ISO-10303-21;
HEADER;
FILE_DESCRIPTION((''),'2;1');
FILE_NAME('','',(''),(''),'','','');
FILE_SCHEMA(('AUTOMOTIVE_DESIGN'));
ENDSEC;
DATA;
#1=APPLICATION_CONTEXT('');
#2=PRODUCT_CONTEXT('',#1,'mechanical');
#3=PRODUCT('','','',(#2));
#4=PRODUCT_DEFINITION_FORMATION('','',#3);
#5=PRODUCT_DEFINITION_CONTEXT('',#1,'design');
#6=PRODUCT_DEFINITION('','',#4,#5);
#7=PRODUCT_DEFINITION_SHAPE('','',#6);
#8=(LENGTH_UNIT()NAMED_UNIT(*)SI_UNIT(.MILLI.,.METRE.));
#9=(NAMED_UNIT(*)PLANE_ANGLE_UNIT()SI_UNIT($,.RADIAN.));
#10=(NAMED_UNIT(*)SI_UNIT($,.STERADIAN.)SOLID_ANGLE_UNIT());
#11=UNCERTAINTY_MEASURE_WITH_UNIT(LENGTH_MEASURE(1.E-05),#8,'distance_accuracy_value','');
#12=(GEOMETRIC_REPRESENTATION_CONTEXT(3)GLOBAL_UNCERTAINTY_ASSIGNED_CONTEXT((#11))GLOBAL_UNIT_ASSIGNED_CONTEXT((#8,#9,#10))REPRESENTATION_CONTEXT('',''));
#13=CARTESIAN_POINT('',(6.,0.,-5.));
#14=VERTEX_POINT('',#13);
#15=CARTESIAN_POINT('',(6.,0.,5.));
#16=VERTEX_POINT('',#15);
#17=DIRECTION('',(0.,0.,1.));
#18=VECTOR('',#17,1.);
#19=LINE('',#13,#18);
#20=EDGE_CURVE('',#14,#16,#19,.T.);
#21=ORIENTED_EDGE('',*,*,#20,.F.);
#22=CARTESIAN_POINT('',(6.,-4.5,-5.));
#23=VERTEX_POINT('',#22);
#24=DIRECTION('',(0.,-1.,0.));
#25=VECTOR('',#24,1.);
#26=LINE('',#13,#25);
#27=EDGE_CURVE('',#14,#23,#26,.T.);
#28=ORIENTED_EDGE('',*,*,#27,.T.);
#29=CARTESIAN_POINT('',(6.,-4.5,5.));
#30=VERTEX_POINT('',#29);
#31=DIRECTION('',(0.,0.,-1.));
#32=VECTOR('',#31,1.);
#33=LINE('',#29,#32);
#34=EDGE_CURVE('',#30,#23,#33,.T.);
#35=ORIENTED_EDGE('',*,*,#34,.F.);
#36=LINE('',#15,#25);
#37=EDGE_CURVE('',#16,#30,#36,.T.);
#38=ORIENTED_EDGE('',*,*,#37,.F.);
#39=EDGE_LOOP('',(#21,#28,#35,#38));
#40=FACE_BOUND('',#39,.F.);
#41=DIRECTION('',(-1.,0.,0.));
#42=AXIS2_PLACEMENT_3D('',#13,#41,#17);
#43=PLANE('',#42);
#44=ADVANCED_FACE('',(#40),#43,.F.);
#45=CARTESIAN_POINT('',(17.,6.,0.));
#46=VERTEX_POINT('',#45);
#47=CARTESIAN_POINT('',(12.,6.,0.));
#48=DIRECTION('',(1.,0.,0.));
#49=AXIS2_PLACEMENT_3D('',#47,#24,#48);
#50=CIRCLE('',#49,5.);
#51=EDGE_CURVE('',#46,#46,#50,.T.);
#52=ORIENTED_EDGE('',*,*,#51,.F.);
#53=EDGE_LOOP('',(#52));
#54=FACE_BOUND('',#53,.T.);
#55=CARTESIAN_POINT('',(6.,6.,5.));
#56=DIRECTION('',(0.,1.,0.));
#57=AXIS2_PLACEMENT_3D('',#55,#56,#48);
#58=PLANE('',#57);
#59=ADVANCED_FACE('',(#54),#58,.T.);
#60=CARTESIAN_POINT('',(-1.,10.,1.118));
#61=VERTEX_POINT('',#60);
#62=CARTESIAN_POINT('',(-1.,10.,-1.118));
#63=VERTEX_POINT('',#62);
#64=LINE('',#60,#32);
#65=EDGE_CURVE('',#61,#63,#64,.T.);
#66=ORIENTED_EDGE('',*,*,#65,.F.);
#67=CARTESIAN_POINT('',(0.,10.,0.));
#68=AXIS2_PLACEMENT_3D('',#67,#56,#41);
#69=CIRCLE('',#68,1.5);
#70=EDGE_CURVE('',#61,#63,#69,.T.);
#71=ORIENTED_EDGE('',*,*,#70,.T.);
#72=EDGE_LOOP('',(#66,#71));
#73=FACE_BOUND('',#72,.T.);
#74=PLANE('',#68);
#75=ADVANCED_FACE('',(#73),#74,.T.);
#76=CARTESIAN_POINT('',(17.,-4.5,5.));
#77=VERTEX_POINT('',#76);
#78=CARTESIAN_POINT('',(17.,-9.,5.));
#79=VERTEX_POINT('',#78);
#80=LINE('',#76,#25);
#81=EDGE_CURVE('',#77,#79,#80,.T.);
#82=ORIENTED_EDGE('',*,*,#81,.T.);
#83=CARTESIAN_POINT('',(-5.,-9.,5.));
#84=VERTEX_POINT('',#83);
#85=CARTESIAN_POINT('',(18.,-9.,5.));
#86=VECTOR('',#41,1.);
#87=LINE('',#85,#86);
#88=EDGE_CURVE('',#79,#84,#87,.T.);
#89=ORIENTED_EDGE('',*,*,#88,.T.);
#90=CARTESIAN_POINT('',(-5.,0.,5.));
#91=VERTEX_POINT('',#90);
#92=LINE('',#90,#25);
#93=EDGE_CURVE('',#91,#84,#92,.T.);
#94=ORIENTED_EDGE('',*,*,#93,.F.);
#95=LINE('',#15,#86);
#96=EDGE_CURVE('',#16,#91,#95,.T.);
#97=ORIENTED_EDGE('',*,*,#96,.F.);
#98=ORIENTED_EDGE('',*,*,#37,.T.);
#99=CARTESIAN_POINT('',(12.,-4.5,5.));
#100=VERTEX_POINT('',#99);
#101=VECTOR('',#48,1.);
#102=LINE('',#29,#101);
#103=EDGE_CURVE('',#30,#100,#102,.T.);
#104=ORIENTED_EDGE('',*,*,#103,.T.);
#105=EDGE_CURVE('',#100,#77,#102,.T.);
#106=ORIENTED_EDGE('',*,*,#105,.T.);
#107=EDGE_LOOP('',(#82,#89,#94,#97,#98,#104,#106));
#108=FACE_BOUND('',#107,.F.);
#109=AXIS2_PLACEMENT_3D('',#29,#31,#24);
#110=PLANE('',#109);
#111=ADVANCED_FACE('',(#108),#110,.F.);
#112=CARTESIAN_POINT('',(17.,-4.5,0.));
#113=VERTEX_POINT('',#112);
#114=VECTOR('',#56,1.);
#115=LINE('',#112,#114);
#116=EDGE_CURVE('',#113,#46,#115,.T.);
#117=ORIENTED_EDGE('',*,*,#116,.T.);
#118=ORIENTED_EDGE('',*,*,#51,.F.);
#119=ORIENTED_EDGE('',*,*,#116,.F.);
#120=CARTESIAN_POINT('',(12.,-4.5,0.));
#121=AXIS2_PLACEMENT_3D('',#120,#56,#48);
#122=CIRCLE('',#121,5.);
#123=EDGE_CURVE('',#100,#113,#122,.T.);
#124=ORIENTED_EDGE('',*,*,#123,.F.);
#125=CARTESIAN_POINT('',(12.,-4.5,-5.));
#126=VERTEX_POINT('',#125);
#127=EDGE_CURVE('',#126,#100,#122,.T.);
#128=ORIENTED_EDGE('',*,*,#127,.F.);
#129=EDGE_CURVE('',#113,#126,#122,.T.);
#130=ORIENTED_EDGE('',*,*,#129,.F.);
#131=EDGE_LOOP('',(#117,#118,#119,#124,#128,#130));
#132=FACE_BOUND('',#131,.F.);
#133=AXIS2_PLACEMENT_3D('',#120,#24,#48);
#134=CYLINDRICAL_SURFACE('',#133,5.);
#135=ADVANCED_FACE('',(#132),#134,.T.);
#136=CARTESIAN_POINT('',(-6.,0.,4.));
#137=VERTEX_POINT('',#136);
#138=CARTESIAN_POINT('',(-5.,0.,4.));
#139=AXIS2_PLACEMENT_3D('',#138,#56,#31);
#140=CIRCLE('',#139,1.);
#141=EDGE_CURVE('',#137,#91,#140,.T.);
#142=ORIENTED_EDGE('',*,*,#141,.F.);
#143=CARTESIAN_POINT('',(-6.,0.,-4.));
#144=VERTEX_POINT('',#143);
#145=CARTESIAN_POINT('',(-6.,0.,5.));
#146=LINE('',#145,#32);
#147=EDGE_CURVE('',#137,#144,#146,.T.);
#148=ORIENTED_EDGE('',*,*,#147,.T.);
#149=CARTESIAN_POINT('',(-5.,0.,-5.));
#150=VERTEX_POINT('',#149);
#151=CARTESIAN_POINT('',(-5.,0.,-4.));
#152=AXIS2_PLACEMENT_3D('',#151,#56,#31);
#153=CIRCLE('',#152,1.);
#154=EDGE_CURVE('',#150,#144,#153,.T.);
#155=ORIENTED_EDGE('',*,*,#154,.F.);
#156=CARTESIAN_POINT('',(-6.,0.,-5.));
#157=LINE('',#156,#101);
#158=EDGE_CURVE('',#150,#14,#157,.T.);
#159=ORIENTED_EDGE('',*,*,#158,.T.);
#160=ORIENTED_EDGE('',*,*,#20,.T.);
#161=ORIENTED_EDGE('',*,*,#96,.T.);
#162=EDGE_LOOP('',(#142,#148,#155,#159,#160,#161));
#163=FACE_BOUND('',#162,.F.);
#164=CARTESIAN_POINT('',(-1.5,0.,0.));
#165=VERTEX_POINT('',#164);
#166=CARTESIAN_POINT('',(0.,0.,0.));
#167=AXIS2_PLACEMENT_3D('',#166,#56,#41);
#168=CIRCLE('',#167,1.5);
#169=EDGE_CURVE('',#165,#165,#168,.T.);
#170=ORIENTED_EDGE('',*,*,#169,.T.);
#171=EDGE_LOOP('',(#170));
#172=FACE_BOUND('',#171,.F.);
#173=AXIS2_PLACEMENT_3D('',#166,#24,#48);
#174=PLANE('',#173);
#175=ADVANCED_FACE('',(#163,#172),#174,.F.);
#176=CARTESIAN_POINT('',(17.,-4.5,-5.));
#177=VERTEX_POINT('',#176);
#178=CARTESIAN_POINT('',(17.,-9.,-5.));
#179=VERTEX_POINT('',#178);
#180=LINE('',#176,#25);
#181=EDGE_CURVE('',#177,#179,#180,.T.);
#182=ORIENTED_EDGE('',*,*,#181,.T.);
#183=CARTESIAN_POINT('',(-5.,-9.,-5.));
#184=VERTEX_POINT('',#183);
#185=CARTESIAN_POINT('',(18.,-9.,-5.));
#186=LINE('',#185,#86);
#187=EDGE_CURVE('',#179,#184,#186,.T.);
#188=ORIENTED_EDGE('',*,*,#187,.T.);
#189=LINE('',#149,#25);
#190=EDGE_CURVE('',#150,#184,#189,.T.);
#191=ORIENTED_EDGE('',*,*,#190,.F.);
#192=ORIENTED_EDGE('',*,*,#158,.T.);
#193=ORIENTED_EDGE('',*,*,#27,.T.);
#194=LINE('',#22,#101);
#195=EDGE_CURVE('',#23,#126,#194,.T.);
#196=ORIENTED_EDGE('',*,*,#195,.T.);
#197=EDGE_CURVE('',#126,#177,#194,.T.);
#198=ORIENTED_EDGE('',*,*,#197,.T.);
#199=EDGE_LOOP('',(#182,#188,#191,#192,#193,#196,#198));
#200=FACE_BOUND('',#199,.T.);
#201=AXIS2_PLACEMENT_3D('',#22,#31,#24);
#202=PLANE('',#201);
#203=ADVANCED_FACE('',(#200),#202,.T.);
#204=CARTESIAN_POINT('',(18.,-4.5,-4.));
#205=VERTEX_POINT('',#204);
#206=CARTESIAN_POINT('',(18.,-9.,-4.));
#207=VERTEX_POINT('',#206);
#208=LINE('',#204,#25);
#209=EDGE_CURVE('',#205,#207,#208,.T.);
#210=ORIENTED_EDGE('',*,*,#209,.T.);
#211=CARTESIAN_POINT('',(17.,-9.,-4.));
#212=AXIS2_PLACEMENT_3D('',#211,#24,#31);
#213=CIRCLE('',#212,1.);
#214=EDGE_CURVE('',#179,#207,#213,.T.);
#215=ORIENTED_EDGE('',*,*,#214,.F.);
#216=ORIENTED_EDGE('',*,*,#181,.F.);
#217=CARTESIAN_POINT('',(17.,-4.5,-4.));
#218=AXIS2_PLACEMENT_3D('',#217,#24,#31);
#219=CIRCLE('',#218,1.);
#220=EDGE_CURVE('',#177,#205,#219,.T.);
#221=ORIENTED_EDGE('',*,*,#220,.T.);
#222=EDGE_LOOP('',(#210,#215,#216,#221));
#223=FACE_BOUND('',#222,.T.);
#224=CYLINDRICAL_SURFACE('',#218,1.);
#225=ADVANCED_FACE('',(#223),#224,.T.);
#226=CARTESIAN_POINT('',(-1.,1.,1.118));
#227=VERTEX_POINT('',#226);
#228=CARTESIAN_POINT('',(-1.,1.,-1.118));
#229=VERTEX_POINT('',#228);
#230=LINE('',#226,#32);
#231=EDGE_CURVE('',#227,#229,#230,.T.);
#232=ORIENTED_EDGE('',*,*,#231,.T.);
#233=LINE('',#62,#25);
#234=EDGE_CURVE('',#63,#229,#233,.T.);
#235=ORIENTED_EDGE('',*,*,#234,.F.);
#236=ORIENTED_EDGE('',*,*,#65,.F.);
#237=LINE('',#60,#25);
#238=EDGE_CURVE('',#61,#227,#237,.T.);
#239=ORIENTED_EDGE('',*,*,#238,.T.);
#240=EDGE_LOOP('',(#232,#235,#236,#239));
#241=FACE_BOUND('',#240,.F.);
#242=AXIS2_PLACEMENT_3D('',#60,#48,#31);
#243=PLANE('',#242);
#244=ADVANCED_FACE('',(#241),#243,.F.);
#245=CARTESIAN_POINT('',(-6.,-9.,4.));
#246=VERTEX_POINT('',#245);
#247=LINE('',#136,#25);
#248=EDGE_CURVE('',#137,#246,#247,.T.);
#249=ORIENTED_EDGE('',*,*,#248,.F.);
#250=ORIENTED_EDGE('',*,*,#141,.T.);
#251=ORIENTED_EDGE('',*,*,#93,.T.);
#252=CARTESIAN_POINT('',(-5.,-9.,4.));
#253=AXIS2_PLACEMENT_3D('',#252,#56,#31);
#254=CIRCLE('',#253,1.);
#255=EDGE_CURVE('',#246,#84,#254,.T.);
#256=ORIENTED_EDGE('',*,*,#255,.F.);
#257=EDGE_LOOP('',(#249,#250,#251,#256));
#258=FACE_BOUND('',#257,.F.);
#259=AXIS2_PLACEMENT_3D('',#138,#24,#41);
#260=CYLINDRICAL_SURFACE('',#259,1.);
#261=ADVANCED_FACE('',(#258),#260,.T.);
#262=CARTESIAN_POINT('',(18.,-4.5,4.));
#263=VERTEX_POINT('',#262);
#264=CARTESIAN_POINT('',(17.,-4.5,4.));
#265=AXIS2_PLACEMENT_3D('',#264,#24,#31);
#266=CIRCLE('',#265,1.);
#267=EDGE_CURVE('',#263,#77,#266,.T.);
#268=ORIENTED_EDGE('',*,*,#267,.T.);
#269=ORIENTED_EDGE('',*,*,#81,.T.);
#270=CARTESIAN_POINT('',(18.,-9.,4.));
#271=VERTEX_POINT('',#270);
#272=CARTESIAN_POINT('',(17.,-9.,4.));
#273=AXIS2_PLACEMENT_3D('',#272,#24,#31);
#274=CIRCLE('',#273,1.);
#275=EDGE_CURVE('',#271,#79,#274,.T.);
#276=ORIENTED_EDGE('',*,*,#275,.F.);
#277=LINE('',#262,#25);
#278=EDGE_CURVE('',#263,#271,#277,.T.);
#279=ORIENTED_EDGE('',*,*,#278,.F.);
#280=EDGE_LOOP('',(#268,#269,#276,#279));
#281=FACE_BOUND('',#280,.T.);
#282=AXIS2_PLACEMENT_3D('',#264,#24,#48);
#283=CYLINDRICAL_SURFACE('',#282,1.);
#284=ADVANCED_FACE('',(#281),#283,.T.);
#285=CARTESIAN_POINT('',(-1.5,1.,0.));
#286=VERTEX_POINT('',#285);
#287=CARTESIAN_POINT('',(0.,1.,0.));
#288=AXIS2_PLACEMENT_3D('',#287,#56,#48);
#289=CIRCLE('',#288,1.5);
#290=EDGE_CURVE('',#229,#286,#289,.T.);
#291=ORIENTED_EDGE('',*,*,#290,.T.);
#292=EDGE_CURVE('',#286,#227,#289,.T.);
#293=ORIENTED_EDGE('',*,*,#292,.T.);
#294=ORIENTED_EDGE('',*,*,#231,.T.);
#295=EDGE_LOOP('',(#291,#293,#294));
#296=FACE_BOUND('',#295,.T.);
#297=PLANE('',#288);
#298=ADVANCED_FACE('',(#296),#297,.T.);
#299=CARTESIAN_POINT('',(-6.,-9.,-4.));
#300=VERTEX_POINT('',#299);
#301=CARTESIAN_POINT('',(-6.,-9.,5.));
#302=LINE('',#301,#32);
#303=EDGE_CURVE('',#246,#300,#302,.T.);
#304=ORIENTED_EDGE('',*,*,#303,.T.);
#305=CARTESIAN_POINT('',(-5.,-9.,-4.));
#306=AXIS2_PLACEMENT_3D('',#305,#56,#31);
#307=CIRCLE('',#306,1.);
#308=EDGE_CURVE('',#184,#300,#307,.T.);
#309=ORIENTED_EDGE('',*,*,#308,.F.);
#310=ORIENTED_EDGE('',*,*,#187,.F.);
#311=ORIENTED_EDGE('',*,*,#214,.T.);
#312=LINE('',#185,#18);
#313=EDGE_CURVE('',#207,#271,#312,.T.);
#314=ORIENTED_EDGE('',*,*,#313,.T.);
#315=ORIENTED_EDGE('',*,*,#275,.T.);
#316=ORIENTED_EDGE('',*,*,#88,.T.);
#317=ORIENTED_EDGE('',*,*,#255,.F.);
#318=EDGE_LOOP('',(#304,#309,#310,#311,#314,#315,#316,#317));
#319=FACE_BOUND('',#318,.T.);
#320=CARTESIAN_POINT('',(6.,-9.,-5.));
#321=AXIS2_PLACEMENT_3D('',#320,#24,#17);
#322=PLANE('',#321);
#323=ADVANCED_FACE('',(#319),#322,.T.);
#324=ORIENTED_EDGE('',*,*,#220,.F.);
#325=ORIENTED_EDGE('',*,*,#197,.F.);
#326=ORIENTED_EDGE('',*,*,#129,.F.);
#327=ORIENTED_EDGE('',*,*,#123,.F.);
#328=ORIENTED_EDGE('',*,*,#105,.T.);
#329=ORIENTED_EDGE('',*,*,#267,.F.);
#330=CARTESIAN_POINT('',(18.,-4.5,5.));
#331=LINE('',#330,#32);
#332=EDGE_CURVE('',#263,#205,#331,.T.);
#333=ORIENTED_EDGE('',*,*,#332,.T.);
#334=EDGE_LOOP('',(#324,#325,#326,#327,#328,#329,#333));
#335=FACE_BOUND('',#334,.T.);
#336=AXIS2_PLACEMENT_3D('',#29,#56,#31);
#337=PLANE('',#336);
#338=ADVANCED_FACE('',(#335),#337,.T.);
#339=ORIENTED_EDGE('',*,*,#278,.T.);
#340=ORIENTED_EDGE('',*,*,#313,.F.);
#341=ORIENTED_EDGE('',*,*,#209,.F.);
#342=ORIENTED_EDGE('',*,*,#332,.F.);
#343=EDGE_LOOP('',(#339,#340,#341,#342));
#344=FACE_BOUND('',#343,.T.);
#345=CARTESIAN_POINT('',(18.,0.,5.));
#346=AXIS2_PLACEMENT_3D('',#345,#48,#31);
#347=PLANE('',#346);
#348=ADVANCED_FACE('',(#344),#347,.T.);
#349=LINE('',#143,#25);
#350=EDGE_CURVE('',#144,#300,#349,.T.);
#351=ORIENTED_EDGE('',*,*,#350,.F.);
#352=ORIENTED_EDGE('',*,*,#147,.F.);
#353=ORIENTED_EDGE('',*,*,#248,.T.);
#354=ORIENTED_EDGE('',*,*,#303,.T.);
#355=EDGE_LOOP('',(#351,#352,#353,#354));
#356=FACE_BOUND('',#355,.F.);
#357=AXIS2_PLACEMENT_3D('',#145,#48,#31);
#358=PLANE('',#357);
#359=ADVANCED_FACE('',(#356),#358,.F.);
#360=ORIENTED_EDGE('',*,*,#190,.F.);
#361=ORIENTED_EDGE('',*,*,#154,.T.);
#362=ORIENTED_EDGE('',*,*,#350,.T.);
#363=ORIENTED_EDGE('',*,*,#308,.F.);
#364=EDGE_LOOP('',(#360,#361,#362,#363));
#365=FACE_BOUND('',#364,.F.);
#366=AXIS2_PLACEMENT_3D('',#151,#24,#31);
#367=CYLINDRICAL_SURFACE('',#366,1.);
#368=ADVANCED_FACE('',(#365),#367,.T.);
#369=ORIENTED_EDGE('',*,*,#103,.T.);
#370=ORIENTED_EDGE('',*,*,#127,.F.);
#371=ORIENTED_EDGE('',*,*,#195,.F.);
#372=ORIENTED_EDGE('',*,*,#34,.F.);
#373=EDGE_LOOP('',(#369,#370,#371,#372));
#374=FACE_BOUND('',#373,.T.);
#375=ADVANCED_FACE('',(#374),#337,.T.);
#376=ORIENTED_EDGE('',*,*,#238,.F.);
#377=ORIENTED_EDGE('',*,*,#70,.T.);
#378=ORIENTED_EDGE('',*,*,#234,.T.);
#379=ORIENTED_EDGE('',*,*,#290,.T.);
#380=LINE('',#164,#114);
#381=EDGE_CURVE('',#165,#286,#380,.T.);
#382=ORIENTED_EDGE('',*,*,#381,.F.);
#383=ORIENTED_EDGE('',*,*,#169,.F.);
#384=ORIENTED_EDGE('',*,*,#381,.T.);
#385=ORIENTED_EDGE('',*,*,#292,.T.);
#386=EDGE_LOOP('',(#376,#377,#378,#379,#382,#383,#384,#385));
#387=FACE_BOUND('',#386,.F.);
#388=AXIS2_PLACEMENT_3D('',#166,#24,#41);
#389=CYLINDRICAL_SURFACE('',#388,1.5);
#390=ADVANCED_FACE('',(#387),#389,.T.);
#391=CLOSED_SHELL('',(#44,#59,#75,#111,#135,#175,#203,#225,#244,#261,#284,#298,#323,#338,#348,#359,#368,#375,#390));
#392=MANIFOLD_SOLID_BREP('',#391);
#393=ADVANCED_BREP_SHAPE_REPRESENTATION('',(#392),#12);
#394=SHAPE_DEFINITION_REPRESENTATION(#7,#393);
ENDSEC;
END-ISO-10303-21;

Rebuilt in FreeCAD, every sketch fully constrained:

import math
import FreeCAD as App
import Part
import Sketcher

V = App.Vector
Q = App.Units.Quantity


def edges_at(feature, points):
    """Names of the edges that pass closest to the given points."""
    edges = feature.Shape.Edges
    near = lambda p: min(range(len(edges)), key=lambda i: edges[i].distToShape(Part.Vertex(*p))[0])
    return sorted({f"Edge{near(p) + 1}" for p in points})

doc = App.newDocument("Part")
body = doc.addObject("PartDesign::Body", "Body")

sketch1 = body.newObject("Sketcher::SketchObject", "Sketch")
sketch1.AttachmentSupport = (doc.getObject("XZ_Plane"), [""])
sketch1.MapMode = "FlatFace"
sketch1.addGeometry(Part.Circle(V(0, 0, 0), V(0, 0, 1), 1.5), False)
sketch1.addConstraint(Sketcher.Constraint("Coincident", 0, 3, -1, 1))
sketch1.addConstraint(Sketcher.Constraint("Diameter", 0, Q("3 mm")))
pad1 = body.newObject("PartDesign::Pad", "Pad")
pad1.Profile = sketch1
pad1.Length = 10
pad1.Reversed = True

sketch2 = body.newObject("Sketcher::SketchObject", "Sketch001")
sketch2.AttachmentSupport = (doc.getObject("XZ_Plane"), [""])
sketch2.MapMode = "FlatFace"
sketch2.addGeometry(Part.LineSegment(V(6, -5, 0), V(6, 5, 0)), False)
sketch2.addGeometry(Part.LineSegment(V(6, 5, 0), V(-6, 5, 0)), False)
sketch2.addGeometry(Part.LineSegment(V(-6, 5, 0), V(-6, -5, 0)), False)
sketch2.addGeometry(Part.LineSegment(V(-6, -5, 0), V(6, -5, 0)), False)
sketch2.addConstraint(Sketcher.Constraint("Coincident", 0, 2, 1, 1))
sketch2.addConstraint(Sketcher.Constraint("Coincident", 1, 2, 2, 1))
sketch2.addConstraint(Sketcher.Constraint("Coincident", 2, 2, 3, 1))
sketch2.addConstraint(Sketcher.Constraint("Coincident", 3, 2, 0, 1))
sketch2.addConstraint(Sketcher.Constraint("Vertical", 0))
sketch2.addConstraint(Sketcher.Constraint("Horizontal", 1))
sketch2.addConstraint(Sketcher.Constraint("Vertical", 2))
sketch2.addConstraint(Sketcher.Constraint("Horizontal", 3))
sketch2.addConstraint(Sketcher.Constraint("Symmetric", 0, 2, 2, 2, -1, 1))
sketch2.addConstraint(Sketcher.Constraint("DistanceX", 1, 2, 1, 1, Q("12 mm")))
sketch2.addConstraint(Sketcher.Constraint("DistanceY", 0, 1, 0, 2, Q("10 mm")))
pad2 = body.newObject("PartDesign::Pad", "Pad001")
pad2.Profile = sketch2
pad2.Length = 9

sketch3 = body.newObject("Sketcher::SketchObject", "Sketch002")
sketch3.AttachmentSupport = (doc.getObject("YZ_Plane"), [""])
sketch3.MapMode = "FlatFace"
sketch3.AttachmentOffset = App.Placement(V(0, 0, 6), App.Rotation())
sketch3.addGeometry(Part.LineSegment(V(-9, -5, 0), V(-4.5, -5, 0)), False)
sketch3.addGeometry(Part.LineSegment(V(-4.5, -5, 0), V(-4.5, 5, 0)), False)
sketch3.addGeometry(Part.LineSegment(V(-4.5, 5, 0), V(-9, 5, 0)), False)
sketch3.addGeometry(Part.LineSegment(V(-9, 5, 0), V(-9, -5, 0)), False)
sketch3.addConstraint(Sketcher.Constraint("Coincident", 0, 2, 1, 1))
sketch3.addConstraint(Sketcher.Constraint("Coincident", 1, 2, 2, 1))
sketch3.addConstraint(Sketcher.Constraint("Coincident", 2, 2, 3, 1))
sketch3.addConstraint(Sketcher.Constraint("Coincident", 3, 2, 0, 1))
sketch3.addConstraint(Sketcher.Constraint("Horizontal", 0))
sketch3.addConstraint(Sketcher.Constraint("Vertical", 1))
sketch3.addConstraint(Sketcher.Constraint("Horizontal", 2))
sketch3.addConstraint(Sketcher.Constraint("Vertical", 3))
sketch3.addConstraint(Sketcher.Constraint("DistanceY", 1, 1, 1, 2, Q("10 mm")))
sketch3.addConstraint(Sketcher.Constraint("DistanceX", 0, 1, 0, 2, Q("4.5 mm")))
sketch3.addConstraint(Sketcher.Constraint("DistanceY", 0, 2, -1, 1, Q("5 mm")))
sketch3.addConstraint(Sketcher.Constraint("DistanceX", 2, 2, -1, 1, Q("9 mm")))
pad3 = body.newObject("PartDesign::Pad", "Pad002")
pad3.Profile = sketch3
pad3.Length = 12

sketch4 = body.newObject("Sketcher::SketchObject", "Sketch003")
sketch4.AttachmentSupport = (doc.getObject("XZ_Plane"), [""])
sketch4.MapMode = "FlatFace"
sketch4.AttachmentOffset = App.Placement(V(0, 0, 4.5), App.Rotation())
sketch4.addGeometry(Part.Circle(V(12, 0, 0), V(0, 0, 1), 5), False)
sketch4.addConstraint(Sketcher.Constraint("PointOnObject", 0, 3, -1))
sketch4.addConstraint(Sketcher.Constraint("Diameter", 0, Q("10 mm")))
sketch4.addConstraint(Sketcher.Constraint("DistanceX", -1, 1, 0, 3, Q("12 mm")))
pad4 = body.newObject("PartDesign::Pad", "Pad003")
pad4.Profile = sketch4
pad4.Length = 10.5
pad4.Reversed = True
doc.recompute()

fillet = body.newObject("PartDesign::Fillet", "Fillet")
fillet.Base = (pad4, edges_at(pad4, [
    (-6, -4.5, 5),
    (18, -6.75, 5),
    (18, -6.75, -5),
    (-6, -4.5, -5),
]))
fillet.Radius = 1

sketch5 = body.newObject("Sketcher::SketchObject", "Sketch004")
sketch5.AttachmentSupport = (doc.getObject("XZ_Plane"), [""])
sketch5.MapMode = "FlatFace"
sketch5.AttachmentOffset = App.Placement(V(0, 0, -10), App.Rotation())
sketch5.addGeometry(Part.LineSegment(V(-1, 1.118, 0), V(-1, -1.118, 0)), False)
sketch5.addGeometry(Part.ArcOfCircle(Part.Circle(V(0, 0, 0), V(0, 0, 1), 1.5), math.radians(131.81118), math.radians(228.18882)), False)
sketch5.addConstraint(Sketcher.Constraint("Coincident", 0, 1, 1, 1))
sketch5.addConstraint(Sketcher.Constraint("Coincident", 1, 2, 0, 2))
sketch5.addConstraint(Sketcher.Constraint("Vertical", 0))
sketch5.addConstraint(Sketcher.Constraint("Coincident", 1, 3, -1, 1))
sketch5.addConstraint(Sketcher.Constraint("Radius", 1, Q("1.5 mm")))
sketch5.addConstraint(Sketcher.Constraint("DistanceX", 0, 1, -1, 1, Q("1 mm")))
pocket1 = body.newObject("PartDesign::Pocket", "Pocket")
pocket1.Profile = sketch5
pocket1.Length = 9
pocket1.Reversed = True

doc.recompute()
